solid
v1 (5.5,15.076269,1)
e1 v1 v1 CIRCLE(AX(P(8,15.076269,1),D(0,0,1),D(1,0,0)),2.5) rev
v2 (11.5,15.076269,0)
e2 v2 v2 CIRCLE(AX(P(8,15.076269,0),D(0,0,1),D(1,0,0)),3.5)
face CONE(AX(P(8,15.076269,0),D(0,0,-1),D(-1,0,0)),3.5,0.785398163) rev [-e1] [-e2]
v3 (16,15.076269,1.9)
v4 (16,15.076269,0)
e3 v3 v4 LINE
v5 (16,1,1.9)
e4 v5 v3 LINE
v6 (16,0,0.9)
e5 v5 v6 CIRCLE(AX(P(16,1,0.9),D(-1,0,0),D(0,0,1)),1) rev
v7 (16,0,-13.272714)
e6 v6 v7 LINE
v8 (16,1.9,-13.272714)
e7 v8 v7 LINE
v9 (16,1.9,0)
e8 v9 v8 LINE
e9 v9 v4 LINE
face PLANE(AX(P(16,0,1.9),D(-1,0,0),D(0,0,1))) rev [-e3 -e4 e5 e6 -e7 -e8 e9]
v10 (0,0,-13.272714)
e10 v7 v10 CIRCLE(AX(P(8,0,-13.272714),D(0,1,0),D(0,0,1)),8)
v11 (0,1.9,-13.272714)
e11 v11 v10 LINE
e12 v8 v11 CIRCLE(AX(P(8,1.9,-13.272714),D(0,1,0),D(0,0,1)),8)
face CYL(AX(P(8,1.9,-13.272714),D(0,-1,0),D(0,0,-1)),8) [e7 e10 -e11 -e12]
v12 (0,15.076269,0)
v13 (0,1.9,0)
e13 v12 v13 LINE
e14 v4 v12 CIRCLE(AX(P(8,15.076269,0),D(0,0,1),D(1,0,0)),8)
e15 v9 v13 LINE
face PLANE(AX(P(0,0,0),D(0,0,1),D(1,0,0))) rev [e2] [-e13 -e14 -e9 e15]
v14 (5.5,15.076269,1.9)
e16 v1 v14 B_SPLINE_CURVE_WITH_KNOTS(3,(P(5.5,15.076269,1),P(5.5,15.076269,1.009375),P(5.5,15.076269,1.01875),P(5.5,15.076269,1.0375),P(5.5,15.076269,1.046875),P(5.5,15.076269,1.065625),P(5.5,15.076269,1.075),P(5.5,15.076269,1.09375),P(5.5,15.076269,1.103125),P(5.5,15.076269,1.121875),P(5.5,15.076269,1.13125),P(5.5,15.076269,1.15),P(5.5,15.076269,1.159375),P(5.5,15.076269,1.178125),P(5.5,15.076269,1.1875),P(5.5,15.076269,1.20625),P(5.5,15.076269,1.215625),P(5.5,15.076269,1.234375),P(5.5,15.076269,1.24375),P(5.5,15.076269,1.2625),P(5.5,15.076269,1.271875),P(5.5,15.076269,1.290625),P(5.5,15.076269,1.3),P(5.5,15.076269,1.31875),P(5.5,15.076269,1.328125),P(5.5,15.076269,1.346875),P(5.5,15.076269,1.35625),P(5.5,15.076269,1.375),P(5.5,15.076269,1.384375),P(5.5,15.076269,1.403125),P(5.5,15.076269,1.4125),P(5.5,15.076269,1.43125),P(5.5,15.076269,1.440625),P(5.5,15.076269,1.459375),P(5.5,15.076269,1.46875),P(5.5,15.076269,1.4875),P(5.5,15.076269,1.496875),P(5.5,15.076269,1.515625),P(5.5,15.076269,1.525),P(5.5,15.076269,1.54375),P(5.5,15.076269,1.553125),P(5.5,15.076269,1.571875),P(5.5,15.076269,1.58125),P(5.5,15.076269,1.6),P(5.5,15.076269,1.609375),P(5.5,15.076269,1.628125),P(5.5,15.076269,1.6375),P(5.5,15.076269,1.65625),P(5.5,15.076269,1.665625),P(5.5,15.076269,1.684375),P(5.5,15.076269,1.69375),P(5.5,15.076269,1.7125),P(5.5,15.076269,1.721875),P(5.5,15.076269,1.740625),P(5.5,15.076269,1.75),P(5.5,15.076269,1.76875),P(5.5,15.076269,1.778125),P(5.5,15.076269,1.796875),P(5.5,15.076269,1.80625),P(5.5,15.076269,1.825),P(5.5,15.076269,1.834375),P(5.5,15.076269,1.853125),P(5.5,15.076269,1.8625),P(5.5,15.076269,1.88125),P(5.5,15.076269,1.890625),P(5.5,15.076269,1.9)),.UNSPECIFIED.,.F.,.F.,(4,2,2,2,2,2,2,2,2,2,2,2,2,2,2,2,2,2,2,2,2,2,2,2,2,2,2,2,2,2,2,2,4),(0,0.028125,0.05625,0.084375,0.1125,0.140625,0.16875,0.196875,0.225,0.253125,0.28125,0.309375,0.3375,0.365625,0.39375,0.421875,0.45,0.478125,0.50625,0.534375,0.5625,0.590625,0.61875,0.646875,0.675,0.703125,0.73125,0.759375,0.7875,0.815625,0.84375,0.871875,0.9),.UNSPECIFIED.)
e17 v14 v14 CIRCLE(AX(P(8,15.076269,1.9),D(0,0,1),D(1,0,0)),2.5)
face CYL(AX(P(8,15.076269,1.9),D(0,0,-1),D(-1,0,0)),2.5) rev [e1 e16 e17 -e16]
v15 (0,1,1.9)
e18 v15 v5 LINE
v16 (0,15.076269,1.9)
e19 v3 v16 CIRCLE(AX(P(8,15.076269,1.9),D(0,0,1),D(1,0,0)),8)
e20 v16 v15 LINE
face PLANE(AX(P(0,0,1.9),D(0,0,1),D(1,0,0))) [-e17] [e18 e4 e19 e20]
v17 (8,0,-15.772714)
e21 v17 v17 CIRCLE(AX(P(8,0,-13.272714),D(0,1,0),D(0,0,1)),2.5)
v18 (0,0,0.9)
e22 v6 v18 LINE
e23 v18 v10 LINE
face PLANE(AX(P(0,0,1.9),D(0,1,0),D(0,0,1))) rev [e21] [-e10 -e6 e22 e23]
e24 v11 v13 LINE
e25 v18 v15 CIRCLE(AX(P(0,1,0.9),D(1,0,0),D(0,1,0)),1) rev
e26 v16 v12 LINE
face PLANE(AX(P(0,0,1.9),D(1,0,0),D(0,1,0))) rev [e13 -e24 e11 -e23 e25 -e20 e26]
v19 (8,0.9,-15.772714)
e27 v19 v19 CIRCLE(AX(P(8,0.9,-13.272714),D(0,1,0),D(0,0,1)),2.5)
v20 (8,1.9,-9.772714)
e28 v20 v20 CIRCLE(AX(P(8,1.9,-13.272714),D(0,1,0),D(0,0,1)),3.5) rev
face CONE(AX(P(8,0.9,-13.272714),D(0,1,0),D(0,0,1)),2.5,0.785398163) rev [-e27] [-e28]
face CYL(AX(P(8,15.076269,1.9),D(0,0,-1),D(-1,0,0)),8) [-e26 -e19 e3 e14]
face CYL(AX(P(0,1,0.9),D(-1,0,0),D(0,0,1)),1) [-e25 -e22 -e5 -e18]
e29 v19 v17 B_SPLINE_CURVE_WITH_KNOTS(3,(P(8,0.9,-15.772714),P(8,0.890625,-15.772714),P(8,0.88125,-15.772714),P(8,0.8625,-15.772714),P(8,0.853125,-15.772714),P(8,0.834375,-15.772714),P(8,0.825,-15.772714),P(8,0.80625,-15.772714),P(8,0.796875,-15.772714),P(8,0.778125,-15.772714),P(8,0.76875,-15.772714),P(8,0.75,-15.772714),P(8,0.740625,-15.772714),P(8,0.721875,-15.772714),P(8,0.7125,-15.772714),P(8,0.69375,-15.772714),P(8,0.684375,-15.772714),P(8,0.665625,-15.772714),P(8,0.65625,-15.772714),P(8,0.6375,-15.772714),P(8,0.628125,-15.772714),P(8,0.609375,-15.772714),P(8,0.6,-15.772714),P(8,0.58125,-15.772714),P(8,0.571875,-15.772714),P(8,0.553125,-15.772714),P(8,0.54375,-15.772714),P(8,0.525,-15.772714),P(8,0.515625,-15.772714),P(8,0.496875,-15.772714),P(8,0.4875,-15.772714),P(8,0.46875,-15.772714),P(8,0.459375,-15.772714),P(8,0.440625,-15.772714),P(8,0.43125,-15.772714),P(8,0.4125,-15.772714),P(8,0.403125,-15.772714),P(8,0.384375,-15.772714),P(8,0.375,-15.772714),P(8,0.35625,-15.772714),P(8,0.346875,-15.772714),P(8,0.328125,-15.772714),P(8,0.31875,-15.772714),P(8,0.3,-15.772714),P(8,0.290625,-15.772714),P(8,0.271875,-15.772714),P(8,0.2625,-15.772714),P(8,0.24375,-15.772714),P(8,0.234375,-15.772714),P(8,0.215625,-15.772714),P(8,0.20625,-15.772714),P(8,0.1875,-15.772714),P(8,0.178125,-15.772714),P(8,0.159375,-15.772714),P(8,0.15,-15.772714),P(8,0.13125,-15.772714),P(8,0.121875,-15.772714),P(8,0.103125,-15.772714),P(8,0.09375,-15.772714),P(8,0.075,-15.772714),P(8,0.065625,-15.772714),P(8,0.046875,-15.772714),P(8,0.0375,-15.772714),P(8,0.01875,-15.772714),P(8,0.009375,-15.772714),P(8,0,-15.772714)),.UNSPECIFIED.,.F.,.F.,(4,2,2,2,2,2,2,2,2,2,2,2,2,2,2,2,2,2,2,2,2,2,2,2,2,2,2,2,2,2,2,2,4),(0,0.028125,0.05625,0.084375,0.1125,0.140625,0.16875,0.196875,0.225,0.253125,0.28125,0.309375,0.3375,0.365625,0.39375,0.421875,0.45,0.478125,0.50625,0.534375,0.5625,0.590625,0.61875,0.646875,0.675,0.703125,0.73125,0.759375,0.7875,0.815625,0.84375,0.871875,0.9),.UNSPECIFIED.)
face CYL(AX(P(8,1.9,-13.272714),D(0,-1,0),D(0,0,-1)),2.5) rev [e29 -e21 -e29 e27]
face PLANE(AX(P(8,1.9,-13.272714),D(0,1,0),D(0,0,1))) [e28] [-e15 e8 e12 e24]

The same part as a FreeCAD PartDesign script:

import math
import FreeCAD as App
import Part
import Sketcher
from FreeCAD import Vector


def edges_at(feature, points):
    """Names of the edges that pass closest to the given points."""
    edges = feature.Shape.Edges
    near = lambda p: min(range(len(edges)), key=lambda i: edges[i].distToShape(Part.Vertex(*p))[0])
    return sorted({f"Edge{near(p) + 1}" for p in points})

doc = App.newDocument("Part")
body = doc.addObject("PartDesign::Body", "Body")

# Sketch on XY plane
sketch1 = body.newObject("Sketcher::SketchObject", "Sketch")
sketch1.AttachmentSupport = (doc.getObject("XY_Plane"), [""])
sketch1.MapMode = "FlatFace"
sketch1.addGeometry(Part.LineSegment(Vector(0, 15.1, 0), Vector(0, 0, 0)), False)
sketch1.addGeometry(Part.LineSegment(Vector(0, 0, 0), Vector(16, 0, 0)), False)
sketch1.addGeometry(Part.LineSegment(Vector(16, 0, 0), Vector(16, 15.1, 0)), False)
sketch1.addGeometry(Part.ArcOfCircle(Part.Circle(Vector(8, 15.1, 0), Vector(0, 0, 1), 8), math.radians(0), math.radians(180)), False)
sketch1.addGeometry(Part.Circle(Vector(8, 15.1, 0), Vector(0, 0, 1), 2.5), False)
sketch1.addConstraint(Sketcher.Constraint("Coincident", 0, 2, 1, 1))
sketch1.addConstraint(Sketcher.Constraint("Coincident", 1, 2, 2, 1))
sketch1.addConstraint(Sketcher.Constraint("Tangent", 2, 2, 3, 1))
sketch1.addConstraint(Sketcher.Constraint("Tangent", 3, 2, 0, 1))
sketch1.addConstraint(Sketcher.Constraint("Vertical", 0))
sketch1.addConstraint(Sketcher.Constraint("Horizontal", 1))
sketch1.addConstraint(Sketcher.Constraint("Vertical", 2))
sketch1.addConstraint(Sketcher.Constraint("Coincident", 0, 2, -1, 1))
sketch1.addConstraint(Sketcher.Constraint("Coincident", 4, 3, 3, 3))
sketch1.addConstraint(Sketcher.Constraint("Diameter", 4, 5.0))
sketch1.addConstraint(Sketcher.Constraint("Radius", 3, 8.0))
sketch1.addConstraint(Sketcher.Constraint("DistanceY", 0, 2, 0, 1, 15.076269))
pad1 = body.newObject("PartDesign::Pad", "Pad")
pad1.Profile = sketch1
pad1.Length = 1.9

# Sketch on XZ plane
sketch2 = body.newObject("Sketcher::SketchObject", "Sketch001")
sketch2.AttachmentSupport = (doc.getObject("XZ_Plane"), [""])
sketch2.MapMode = "FlatFace"
sketch2.addGeometry(Part.LineSegment(Vector(0, 1.9, 0), Vector(16, 1.9, 0)), False)
sketch2.addGeometry(Part.LineSegment(Vector(16, 1.9, 0), Vector(16, -13.3, 0)), False)
sketch2.addGeometry(Part.ArcOfCircle(Part.Circle(Vector(8, -13.3, 0), Vector(0, 0, 1), 8), math.radians(180), math.radians(360)), False)
sketch2.addGeometry(Part.LineSegment(Vector(0, -13.3, 0), Vector(0, 1.9, 0)), False)
sketch2.addGeometry(Part.Circle(Vector(8, -13.3, 0), Vector(0, 0, 1), 2.5), False)
sketch2.addConstraint(Sketcher.Constraint("Coincident", 0, 2, 1, 1))
sketch2.addConstraint(Sketcher.Constraint("Tangent", 1, 2, 2, 2))
sketch2.addConstraint(Sketcher.Constraint("Tangent", 2, 1, 3, 1))
sketch2.addConstraint(Sketcher.Constraint("Coincident", 3, 2, 0, 1))
sketch2.addConstraint(Sketcher.Constraint("Horizontal", 0))
sketch2.addConstraint(Sketcher.Constraint("Vertical", 1))
sketch2.addConstraint(Sketcher.Constraint("Vertical", 3))
sketch2.addConstraint(Sketcher.Constraint("Coincident", 4, 3, 2, 3))
sketch2.addConstraint(Sketcher.Constraint("PointOnObject", 2, 1, -2))
sketch2.addConstraint(Sketcher.Constraint("Diameter", 4, 5.0))
sketch2.addConstraint(Sketcher.Constraint("Radius", 2, 8.0))
sketch2.addConstraint(Sketcher.Constraint("DistanceY", -1, 1, 0, 2, 1.9))
sketch2.addConstraint(Sketcher.Constraint("DistanceY", 1, 2, 1, 1, 15.172714))
pad2 = body.newObject("PartDesign::Pad", "Pad001")
pad2.Profile = sketch2
pad2.Length = 1.9
pad2.Reversed = True
doc.recompute()

fillet = body.newObject("PartDesign::Fillet", "Fillet")
fillet.Base = (pad2, edges_at(pad2, [(8, 0, 1.9)]))
fillet.Radius = 1
doc.recompute()

chamfer = body.newObject("PartDesign::Chamfer", "Chamfer")
chamfer.Base = (fillet, edges_at(fillet, [(8, 1.9, -10.773), (10.5, 15.076, 0)]))
chamfer.Size = 1

doc.recompute()
